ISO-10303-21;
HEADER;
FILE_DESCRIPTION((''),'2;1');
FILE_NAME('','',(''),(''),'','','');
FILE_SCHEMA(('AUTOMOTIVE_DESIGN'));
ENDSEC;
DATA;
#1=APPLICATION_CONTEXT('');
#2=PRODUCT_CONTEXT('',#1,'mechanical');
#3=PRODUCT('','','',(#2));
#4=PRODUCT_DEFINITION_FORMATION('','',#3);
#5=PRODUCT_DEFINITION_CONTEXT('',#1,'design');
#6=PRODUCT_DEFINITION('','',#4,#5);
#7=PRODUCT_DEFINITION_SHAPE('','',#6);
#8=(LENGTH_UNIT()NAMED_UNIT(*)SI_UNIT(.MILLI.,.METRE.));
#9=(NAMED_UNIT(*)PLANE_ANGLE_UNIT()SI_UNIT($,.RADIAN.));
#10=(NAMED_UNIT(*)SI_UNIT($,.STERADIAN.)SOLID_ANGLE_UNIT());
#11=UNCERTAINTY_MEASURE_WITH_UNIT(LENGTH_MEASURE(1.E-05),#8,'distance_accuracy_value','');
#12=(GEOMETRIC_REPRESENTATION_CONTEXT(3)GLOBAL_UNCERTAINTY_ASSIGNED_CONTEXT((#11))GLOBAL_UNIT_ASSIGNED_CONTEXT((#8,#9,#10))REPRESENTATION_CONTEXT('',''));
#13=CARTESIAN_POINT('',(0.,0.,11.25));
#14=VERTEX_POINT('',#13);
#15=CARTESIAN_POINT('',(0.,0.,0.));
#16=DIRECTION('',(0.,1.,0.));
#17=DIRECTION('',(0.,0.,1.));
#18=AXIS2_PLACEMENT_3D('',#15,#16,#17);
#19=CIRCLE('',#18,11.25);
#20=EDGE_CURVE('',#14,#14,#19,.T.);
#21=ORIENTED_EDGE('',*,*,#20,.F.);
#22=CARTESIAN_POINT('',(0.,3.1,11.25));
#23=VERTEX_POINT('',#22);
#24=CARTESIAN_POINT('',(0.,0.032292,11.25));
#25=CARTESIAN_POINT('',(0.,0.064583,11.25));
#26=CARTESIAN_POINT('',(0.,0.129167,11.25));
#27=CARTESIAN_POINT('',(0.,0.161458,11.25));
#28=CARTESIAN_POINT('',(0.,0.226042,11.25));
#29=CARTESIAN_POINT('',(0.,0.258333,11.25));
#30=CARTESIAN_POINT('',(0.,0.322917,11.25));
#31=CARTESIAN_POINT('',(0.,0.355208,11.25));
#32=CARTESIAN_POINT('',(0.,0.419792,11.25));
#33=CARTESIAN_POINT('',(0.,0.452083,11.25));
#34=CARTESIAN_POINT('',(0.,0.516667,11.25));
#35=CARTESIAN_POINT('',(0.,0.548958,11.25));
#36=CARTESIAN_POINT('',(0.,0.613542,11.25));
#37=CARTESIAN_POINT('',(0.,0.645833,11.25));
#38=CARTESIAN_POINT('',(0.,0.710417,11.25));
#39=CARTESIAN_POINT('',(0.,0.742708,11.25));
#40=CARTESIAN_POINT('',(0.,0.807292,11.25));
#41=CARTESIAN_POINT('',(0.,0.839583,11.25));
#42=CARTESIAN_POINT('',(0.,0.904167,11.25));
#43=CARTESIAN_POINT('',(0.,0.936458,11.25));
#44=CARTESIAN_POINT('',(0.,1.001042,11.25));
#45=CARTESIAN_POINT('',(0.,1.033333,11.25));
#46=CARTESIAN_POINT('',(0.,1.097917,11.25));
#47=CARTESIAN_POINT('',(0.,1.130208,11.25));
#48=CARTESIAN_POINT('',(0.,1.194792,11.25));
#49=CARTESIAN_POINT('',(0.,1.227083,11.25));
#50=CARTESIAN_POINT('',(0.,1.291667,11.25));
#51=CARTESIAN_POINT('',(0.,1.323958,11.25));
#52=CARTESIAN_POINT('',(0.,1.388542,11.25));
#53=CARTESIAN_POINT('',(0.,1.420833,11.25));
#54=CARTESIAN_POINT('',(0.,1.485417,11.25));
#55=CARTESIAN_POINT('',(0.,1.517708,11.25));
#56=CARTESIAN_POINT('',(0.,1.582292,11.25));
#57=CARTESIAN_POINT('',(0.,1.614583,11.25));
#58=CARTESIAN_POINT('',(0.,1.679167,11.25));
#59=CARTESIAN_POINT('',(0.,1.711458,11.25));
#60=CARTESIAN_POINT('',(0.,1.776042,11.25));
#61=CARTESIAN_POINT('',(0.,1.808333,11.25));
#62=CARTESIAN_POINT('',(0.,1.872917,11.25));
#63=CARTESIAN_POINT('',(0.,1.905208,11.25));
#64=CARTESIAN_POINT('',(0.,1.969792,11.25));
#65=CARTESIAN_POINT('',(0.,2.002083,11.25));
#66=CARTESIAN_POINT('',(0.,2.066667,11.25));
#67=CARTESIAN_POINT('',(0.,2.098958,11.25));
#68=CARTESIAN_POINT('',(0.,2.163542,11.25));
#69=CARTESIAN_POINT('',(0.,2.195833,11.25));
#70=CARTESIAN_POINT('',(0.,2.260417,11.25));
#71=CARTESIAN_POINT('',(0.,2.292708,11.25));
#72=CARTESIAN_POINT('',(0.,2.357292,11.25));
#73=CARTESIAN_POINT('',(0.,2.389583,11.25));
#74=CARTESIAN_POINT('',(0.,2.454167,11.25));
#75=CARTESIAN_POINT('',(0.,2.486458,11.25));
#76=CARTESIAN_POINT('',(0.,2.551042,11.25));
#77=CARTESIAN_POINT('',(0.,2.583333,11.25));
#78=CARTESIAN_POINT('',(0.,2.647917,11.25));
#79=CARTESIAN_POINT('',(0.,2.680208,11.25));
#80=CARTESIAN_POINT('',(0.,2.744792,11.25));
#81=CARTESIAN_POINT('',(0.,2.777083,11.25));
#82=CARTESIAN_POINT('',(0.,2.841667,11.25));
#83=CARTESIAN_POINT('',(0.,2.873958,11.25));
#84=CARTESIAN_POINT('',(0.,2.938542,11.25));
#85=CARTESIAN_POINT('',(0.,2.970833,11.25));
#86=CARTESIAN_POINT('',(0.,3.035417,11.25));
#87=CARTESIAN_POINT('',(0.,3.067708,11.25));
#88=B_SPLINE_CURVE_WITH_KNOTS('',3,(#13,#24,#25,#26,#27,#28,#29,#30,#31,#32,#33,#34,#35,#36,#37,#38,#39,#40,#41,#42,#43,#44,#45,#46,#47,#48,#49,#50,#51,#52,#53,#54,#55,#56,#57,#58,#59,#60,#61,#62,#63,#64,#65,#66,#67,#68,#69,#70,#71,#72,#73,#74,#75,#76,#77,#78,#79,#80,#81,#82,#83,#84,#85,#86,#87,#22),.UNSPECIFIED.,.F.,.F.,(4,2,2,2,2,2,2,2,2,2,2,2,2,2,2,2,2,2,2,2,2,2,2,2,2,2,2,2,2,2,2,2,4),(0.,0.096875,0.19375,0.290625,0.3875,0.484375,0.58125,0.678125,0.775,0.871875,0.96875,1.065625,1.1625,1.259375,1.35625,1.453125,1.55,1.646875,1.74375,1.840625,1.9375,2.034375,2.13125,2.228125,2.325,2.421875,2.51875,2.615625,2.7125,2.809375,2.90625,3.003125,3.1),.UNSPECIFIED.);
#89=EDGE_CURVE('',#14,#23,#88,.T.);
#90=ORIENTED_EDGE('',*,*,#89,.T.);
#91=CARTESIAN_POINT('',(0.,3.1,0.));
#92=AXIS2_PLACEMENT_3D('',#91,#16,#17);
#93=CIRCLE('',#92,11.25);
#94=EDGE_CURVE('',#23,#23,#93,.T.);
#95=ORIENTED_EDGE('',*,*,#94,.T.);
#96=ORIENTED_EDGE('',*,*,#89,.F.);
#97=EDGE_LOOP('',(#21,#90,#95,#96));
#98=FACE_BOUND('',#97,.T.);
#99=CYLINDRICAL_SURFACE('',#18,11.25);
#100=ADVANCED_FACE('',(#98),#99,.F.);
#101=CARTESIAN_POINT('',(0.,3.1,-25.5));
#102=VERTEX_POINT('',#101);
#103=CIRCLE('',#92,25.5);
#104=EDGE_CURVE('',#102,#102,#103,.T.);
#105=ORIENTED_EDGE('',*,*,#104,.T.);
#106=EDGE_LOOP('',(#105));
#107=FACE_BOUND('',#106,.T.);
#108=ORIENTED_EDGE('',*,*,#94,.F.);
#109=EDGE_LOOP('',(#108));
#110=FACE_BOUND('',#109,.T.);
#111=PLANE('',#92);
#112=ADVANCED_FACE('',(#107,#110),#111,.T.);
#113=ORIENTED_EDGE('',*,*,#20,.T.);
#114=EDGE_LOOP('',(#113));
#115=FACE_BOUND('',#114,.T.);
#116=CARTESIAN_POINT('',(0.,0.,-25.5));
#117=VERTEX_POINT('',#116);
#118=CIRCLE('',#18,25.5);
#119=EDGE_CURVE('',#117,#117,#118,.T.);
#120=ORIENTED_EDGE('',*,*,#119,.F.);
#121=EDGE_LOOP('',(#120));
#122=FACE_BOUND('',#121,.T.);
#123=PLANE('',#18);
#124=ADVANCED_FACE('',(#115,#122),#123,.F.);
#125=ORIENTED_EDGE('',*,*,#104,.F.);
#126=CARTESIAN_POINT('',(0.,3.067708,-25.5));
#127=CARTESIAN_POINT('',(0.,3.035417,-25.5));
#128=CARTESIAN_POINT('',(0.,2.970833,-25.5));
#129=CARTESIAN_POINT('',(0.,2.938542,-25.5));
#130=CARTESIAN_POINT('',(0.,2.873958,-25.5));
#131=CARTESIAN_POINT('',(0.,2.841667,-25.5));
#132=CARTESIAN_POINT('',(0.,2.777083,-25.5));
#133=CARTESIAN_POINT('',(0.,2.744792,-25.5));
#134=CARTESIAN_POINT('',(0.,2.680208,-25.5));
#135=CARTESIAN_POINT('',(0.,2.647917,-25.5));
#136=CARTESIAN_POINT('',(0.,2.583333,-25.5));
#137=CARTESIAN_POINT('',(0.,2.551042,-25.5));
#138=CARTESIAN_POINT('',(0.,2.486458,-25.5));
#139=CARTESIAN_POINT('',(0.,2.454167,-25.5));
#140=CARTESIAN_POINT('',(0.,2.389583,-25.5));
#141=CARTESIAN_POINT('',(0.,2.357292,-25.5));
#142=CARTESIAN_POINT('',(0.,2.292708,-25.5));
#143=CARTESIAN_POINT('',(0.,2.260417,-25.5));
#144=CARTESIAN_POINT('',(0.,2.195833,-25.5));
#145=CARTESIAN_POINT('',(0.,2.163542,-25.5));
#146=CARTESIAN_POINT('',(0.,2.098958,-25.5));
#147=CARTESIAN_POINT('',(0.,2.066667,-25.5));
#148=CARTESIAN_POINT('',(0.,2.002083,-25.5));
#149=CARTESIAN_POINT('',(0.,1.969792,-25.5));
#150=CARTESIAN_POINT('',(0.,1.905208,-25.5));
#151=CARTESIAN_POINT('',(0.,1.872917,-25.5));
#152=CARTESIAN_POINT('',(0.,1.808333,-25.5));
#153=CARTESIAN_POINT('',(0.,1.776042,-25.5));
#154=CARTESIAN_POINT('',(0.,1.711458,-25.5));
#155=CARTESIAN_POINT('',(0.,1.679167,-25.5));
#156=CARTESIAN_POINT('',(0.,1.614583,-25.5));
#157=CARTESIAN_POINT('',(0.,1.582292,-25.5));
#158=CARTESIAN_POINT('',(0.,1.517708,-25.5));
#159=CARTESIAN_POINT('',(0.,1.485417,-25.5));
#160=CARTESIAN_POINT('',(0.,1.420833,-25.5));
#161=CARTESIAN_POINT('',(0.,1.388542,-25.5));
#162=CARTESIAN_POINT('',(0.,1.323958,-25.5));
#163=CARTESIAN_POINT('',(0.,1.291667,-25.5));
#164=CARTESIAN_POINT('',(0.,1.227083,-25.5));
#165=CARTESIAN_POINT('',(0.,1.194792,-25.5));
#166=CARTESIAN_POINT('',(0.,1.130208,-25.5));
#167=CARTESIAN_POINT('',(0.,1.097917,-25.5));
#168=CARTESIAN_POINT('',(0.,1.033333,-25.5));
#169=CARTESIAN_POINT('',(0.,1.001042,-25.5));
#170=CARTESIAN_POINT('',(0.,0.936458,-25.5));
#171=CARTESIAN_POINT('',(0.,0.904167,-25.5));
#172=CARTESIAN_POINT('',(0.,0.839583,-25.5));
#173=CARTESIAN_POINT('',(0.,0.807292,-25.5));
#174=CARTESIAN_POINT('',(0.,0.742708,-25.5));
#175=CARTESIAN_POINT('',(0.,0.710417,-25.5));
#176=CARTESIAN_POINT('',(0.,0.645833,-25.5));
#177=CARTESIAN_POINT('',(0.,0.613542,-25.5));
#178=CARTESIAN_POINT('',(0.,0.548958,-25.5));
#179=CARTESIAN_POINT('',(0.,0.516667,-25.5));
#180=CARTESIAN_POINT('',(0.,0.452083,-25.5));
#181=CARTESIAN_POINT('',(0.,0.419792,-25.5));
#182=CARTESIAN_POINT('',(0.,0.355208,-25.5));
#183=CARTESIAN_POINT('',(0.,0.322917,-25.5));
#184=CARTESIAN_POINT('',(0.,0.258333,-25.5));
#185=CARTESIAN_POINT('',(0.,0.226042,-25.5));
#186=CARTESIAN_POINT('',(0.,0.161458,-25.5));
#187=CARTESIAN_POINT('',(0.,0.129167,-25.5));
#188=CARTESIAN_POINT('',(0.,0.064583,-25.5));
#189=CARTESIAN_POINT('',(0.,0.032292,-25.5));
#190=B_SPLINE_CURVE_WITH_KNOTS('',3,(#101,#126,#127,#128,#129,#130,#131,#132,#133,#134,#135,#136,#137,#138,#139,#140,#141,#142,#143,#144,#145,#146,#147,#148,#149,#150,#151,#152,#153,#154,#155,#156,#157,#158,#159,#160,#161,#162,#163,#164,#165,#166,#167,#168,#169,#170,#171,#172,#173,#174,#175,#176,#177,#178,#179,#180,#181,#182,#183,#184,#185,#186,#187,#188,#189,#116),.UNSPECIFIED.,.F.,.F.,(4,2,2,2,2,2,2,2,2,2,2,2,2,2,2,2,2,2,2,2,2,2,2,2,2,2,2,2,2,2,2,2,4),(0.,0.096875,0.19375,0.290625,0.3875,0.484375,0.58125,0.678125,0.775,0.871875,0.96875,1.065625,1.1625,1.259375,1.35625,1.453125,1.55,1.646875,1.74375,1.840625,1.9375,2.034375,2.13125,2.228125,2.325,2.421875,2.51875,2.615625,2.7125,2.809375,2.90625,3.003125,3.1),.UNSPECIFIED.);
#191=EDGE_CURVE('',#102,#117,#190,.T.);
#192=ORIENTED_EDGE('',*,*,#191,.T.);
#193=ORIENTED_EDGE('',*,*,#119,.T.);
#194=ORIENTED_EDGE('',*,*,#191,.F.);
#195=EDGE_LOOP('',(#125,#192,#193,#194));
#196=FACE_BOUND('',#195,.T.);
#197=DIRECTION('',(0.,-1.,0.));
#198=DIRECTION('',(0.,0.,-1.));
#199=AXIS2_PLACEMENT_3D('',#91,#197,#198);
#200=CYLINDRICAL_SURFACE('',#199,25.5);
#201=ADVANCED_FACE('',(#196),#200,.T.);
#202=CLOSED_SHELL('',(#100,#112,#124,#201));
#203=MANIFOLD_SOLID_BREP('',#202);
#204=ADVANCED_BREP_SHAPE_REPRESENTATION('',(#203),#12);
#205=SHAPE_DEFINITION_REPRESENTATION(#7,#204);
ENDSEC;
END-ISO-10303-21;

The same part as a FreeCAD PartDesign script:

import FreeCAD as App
import Part
import Sketcher
from FreeCAD import Vector
Q = App.Units.Quantity

doc = App.newDocument("Part")
body = doc.addObject("PartDesign::Body", "Body")

# Sketch on XZ plane
sketch1 = body.newObject("Sketcher::SketchObject", "Sketch")
sketch1.AttachmentSupport = (doc.getObject("XZ_Plane"), [""])
sketch1.MapMode = "FlatFace"
sketch1.addGeometry(Part.Circle(Vector(0, 0, 0), Vector(0, 0, 1), 26), False)
sketch1.addConstraint([
    Sketcher.Constraint("Coincident", 0, 3, -1, 1),
    Sketcher.Constraint("Diameter", 0, Q("51 mm")),
])
pad1 = body.newObject("PartDesign::Pad", "Pad")
pad1.Profile = sketch1
pad1.Length = 3.1
pad1.Reversed = True

# Sketch on XZ plane
sketch2 = body.newObject("Sketcher::SketchObject", "Sketch001")
sketch2.AttachmentSupport = (doc.getObject("XZ_Plane"), [""])
sketch2.MapMode = "FlatFace"
sketch2.AttachmentOffset = App.Placement(Vector(0, 0, -3.1), App.Rotation())
sketch2.addGeometry(Part.Circle(Vector(0, 0, 0), Vector(0, 0, 1), 11), False)
sketch2.addConstraint([
    Sketcher.Constraint("Coincident", 0, 3, -1, 1),
    Sketcher.Constraint("Diameter", 0, Q("22.5 mm")),
])
pocket1 = body.newObject("PartDesign::Pocket", "Pocket")
pocket1.Profile = sketch2
pocket1.Length = 3.1
pocket1.Reversed = True

doc.recompute()
